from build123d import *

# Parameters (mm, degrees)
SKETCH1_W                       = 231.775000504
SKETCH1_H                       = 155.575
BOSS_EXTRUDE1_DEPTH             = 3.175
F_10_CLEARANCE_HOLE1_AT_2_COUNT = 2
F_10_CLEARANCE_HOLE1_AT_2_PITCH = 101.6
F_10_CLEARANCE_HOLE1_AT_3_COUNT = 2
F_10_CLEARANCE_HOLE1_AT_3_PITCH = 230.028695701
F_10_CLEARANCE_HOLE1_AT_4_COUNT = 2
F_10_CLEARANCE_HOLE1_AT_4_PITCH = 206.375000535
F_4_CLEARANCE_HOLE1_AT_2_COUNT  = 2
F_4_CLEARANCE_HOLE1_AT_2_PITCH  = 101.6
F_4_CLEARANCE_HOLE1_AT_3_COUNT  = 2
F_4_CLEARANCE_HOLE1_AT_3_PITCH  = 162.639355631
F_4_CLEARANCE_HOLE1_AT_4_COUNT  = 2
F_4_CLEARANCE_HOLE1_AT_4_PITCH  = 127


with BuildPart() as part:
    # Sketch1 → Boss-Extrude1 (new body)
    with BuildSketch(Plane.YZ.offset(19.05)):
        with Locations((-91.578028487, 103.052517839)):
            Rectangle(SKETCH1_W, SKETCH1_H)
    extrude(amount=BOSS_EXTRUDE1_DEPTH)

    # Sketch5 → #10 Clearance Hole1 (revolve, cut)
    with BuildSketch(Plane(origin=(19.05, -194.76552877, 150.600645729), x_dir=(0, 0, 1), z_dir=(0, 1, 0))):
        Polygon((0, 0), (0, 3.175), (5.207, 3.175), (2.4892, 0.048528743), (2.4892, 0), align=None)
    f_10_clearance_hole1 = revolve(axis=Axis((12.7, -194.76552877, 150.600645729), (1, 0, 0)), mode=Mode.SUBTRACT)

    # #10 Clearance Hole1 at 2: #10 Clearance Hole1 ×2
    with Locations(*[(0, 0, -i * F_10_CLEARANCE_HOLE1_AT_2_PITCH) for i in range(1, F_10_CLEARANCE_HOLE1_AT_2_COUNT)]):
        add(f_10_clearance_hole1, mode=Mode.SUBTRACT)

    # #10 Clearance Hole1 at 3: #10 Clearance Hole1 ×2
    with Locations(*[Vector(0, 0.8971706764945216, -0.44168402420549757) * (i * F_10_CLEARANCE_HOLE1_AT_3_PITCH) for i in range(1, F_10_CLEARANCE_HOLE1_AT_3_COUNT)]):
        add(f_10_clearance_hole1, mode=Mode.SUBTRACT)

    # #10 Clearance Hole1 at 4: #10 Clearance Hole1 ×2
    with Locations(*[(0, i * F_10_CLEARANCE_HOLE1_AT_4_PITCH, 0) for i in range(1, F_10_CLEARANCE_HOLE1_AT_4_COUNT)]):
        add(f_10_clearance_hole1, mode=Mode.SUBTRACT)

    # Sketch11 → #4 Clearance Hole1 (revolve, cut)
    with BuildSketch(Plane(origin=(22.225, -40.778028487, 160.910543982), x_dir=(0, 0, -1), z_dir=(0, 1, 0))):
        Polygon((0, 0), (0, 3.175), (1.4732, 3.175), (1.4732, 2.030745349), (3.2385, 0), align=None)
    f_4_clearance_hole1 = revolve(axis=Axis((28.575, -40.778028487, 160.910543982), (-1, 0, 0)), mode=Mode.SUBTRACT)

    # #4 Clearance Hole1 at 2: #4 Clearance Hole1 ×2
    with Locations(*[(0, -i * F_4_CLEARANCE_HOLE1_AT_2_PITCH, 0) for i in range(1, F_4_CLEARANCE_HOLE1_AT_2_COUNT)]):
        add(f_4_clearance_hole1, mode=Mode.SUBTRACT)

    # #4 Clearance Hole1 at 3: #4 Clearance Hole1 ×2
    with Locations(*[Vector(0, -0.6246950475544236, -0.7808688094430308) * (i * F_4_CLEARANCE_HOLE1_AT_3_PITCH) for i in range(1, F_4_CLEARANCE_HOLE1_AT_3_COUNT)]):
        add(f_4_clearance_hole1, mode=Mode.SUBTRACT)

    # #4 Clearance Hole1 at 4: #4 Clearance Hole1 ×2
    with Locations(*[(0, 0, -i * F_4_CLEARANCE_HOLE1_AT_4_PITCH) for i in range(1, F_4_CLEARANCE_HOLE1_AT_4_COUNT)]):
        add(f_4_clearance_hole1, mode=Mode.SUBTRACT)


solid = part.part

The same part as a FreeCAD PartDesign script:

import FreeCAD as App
import Part
import Sketcher
from FreeCAD import Vector
Q = App.Units.Quantity


def add_polygon(sketch, points):
    """Adds a closed chain of lines whose ends are joined by coincident constraints."""
    first, n = sketch.GeometryCount, len(points)
    for a, b in zip(points, points[1:] + points[:1]):
        sketch.addGeometry(Part.LineSegment(App.Vector(*a, 0), App.Vector(*b, 0)), False)
    for i in range(n):
        sketch.addConstraint(Sketcher.Constraint("Coincident", first + i, 2, first + (i + 1) % n, 1))

doc = App.newDocument("Part")
body = doc.addObject("PartDesign::Body", "Body")

# Sketch on YZ plane
sketch1 = body.newObject("Sketcher::SketchObject", "Sketch")
sketch1.AttachmentSupport = (doc.getObject("YZ_Plane"), [""])
sketch1.MapMode = "FlatFace"
sketch1.AttachmentOffset = App.Placement(Vector(0, 0, 0.75 * 25.4), App.Rotation())
add_polygon(sketch1, [(-207, 181), (-207, 25), (24, 25), (24, 181)])  # lines 0-3
sketch1.addConstraint([
    Sketcher.Constraint("Vertical", 0),
    Sketcher.Constraint("Horizontal", 1),
    Sketcher.Constraint("Vertical", 2),
    Sketcher.Constraint("Horizontal", 3),
    Sketcher.Constraint("DistanceX", 1, 1, 1, 2, Q("9.125 in")),
    Sketcher.Constraint("DistanceY", 0, 2, 0, 1, Q("6.125 in")),
    Sketcher.Constraint("DistanceX", 0, 2, -1, 1, Q("207.465529 mm")),
    Sketcher.Constraint("DistanceY", -1, 1, 0, 2, Q("25.265018 mm")),
])
pad1 = body.newObject("PartDesign::Pad", "Pad")
pad1.Profile = sketch1
pad1.Length = Q("0.125 in")

# Sketch on XZ plane
sketch2 = body.newObject("Sketcher::SketchObject", "Sketch001")
sketch2.AttachmentSupport = (doc.getObject("XZ_Plane"), [""])
sketch2.MapMode = "FlatFace"
sketch2.AttachmentOffset = App.Placement(Vector(0, 0, 194.765529), App.Rotation())
add_polygon(sketch2, [(22.225, 150.601), (19.05, 150.601), (19.05, 153.09), (19.099, 153.09), (22.225, 155.808)])  # lines 0-4
sketch2.addGeometry(Part.LineSegment(Vector(19.05, 150.601, 0), Vector(22.225, 150.601, 0)), True)  # axis
sketch2.addConstraint([
    Sketcher.Constraint("Horizontal", 0),
    Sketcher.Constraint("Vertical", 1),
    Sketcher.Constraint("Horizontal", 2),
    Sketcher.Constraint("Vertical", 4),
    Sketcher.Constraint("Horizontal", 5),
    Sketcher.Constraint("Coincident", 5, 1, 0, 2),
    Sketcher.Constraint("Vertical", 3, 2, 5, 2),
    Sketcher.Constraint("Angle", 3, Q("41 deg")),
    Sketcher.Constraint("DistanceX", 0, 2, 0, 1, Q("0.125 in")),
    Sketcher.Constraint("DistanceY", 1, 1, 1, 2, Q("0.098 in")),
    Sketcher.Constraint("DistanceY", 4, 2, 4, 1, Q("0.205 in")),
    Sketcher.Constraint("DistanceX", -1, 1, 0, 2, Q("0.75 in")),
    Sketcher.Constraint("DistanceY", -1, 1, 0, 2, Q("150.600646 mm")),
])
groove = body.newObject("PartDesign::Groove", "Groove")
groove.Profile = sketch2
groove.ReferenceAxis = (sketch2, ["Axis0"])
groove.Angle = 360
doc.recompute()

linearpattern = body.newObject("PartDesign::LinearPattern", "LinearPattern")
linearpattern.Originals = [groove]
linearpattern.Direction = (doc.getObject("Z_Axis"), [""])
linearpattern.Mode = "offset"
linearpattern.Offset = Q("4 in")
linearpattern.Occurrences = 2
linearpattern.Reversed = True
body.Tip = linearpattern
doc.recompute()

datumline = body.newObject("PartDesign::Line", "DatumLine")
datumline.Placement = App.Placement(Vector(0, 0, 0), App.Rotation(Vector(0, 0, 1), Vector(0, 0.897170676, -0.441684024)))
linearpattern2 = body.newObject("PartDesign::LinearPattern", "LinearPattern001")
linearpattern2.Originals = [groove]
linearpattern2.Direction = (datumline, [""])
linearpattern2.Mode = "offset"
linearpattern2.Offset = 230.028696
linearpattern2.Occurrences = 2
body.Tip = linearpattern2
doc.recompute()

linearpattern3 = body.newObject("PartDesign::LinearPattern", "LinearPattern002")
linearpattern3.Originals = [groove]
linearpattern3.Direction = (doc.getObject("Y_Axis"), [""])
linearpattern3.Mode = "offset"
linearpattern3.Offset = Q("8.125 in")
linearpattern3.Occurrences = 2
body.Tip = linearpattern3

# Sketch on XZ plane
sketch3 = body.newObject("Sketcher::SketchObject", "Sketch002")
sketch3.AttachmentSupport = (doc.getObject("XZ_Plane"), [""])
sketch3.MapMode = "FlatFace"
sketch3.AttachmentOffset = App.Placement(Vector(0, 0, 40.778028), App.Rotation())
add_polygon(sketch3, [(19.1, 160.9), (22.2, 160.9), (22.2, 157.7), (20.2, 159.4), (19.1, 159.4)])  # lines 0-4
sketch3.addGeometry(Part.LineSegment(Vector(22.2, 160.9, 0), Vector(19.1, 160.9, 0)), True)  # axis
sketch3.addConstraint([
    Sketcher.Constraint("Horizontal", 0),
    Sketcher.Constraint("Vertical", 1),
    Sketcher.Constraint("Horizontal", 3),
    Sketcher.Constraint("Vertical", 4),
    Sketcher.Constraint("Horizontal", 5),
    Sketcher.Constraint("Coincident", 5, 1, 0, 2),
    Sketcher.Constraint("Vertical", 3, 2, 5, 2),
    Sketcher.Constraint("Angle", 2, Q("139 deg")),
    Sketcher.Constraint("DistanceX", 0, 1, 0, 2, Q("0.125 in")),
    Sketcher.Constraint("DistanceY", 4, 1, 4, 2, Q("0.058 in")),
    Sketcher.Constraint("DistanceX", -1, 1, 3, 2, Q("0.75 in")),
    Sketcher.Constraint("DistanceY", 1, 2, 1, 1, Q("0.1275 in")),
    Sketcher.Constraint("DistanceY", -1, 1, 0, 2, Q("160.910544 mm")),
])
groove2 = body.newObject("PartDesign::Groove", "Groove001")
groove2.Profile = sketch3
groove2.ReferenceAxis = (sketch3, ["Axis0"])
groove2.Angle = 360
doc.recompute()

linearpattern4 = body.newObject("PartDesign::LinearPattern", "LinearPattern003")
linearpattern4.Originals = [groove2]
linearpattern4.Direction = (doc.getObject("Y_Axis"), [""])
linearpattern4.Mode = "offset"
linearpattern4.Offset = Q("4 in")
linearpattern4.Occurrences = 2
linearpattern4.Reversed = True
body.Tip = linearpattern4
doc.recompute()

datumline2 = body.newObject("PartDesign::Line", "DatumLine001")
datumline2.Placement = App.Placement(Vector(0, 0, 0), App.Rotation(Vector(0, 0, 1), Vector(0, -0.624695048, -0.780868809)))
linearpattern5 = body.newObject("PartDesign::LinearPattern", "LinearPattern004")
linearpattern5.Originals = [groove2]
linearpattern5.Direction = (datumline2, [""])
linearpattern5.Mode = "offset"
linearpattern5.Offset = 162.639356
linearpattern5.Occurrences = 2
body.Tip = linearpattern5
doc.recompute()

linearpattern6 = body.newObject("PartDesign::LinearPattern", "LinearPattern005")
linearpattern6.Originals = [groove2]
linearpattern6.Direction = (doc.getObject("Z_Axis"), [""])
linearpattern6.Mode = "offset"
linearpattern6.Offset = Q("5 in")
linearpattern6.Occurrences = 2
linearpattern6.Reversed = True
body.Tip = linearpattern6

doc.recompute()
